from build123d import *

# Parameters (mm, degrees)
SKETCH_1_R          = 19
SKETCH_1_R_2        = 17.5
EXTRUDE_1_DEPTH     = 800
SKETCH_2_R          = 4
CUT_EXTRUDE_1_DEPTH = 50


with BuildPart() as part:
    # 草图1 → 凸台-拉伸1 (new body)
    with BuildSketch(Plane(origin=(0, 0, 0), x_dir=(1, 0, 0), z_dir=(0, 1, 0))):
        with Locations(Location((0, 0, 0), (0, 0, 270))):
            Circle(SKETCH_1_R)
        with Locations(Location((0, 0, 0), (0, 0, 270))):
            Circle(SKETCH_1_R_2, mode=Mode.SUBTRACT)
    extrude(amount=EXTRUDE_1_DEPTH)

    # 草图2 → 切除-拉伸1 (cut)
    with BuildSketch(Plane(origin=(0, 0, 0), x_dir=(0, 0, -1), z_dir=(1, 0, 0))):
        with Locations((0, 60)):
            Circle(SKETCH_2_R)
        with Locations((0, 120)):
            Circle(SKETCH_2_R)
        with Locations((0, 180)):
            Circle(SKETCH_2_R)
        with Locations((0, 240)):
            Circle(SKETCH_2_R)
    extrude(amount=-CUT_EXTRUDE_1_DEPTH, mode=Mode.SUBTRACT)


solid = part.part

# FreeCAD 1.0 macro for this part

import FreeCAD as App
import Part
import Sketcher

V = App.Vector

doc = App.newDocument("Part")
params = doc.addObject("Spreadsheet::Sheet", "Params")
for row, (alias, value) in enumerate([
    ("sketch1_diameter", "38 mm"),
    ("sketch1_diameter2", "35 mm"),
    ("pad1_length", "800 mm"),
    ("sketch2_diameter", "8 mm"),
    ("pocket1_length", "50 mm"),
], start=1):
    params.set(f"A{row}", alias)
    params.set(f"B{row}", "=" + value)
    params.setAlias(f"B{row}", alias)

body = doc.addObject("PartDesign::Body", "Body")

# Sketch on XZ plane
sketch1 = body.newObject("Sketcher::SketchObject", "Sketch")
sketch1.AttachmentSupport = (doc.getObject("XZ_Plane"), [""])
sketch1.MapMode = "FlatFace"
sketch1.addGeometry([
    Part.Circle(V(0, 0, 0), V(0, 0, 1), 19),
    Part.Circle(V(0, 0, 0), V(0, 0, 1), 18),
], False)
sketch1.addConstraint([
    Sketcher.Constraint("Coincident", 0, 3, -1, 1),
    Sketcher.Constraint("Coincident", 1, 3, -1, 1),
    Sketcher.Constraint("Diameter", 0, 38.0),
    Sketcher.Constraint("Diameter", 1, 35.0),
])
sketch1.setExpression("Constraints[2]", "Params.sketch1_diameter")
sketch1.setExpression("Constraints[3]", "Params.sketch1_diameter2")
pad1 = body.newObject("PartDesign::Pad", "Pad")
pad1.Profile = sketch1
pad1.setExpression("Length", "Params.pad1_length")
pad1.Reversed = True

# Sketch on YZ plane
sketch2 = body.newObject("Sketcher::SketchObject", "Sketch001")
sketch2.AttachmentSupport = (doc.getObject("YZ_Plane"), [""])
sketch2.MapMode = "FlatFace"
sketch2.addGeometry([
    Part.Circle(V(60, 0, 0), V(0, 0, 1), 4),
    Part.Circle(V(120, 0, 0), V(0, 0, 1), 4),
    Part.Circle(V(180, 0, 0), V(0, 0, 1), 4),
    Part.Circle(V(240, 0, 0), V(0, 0, 1), 4),
], False)
sketch2.addConstraint([
    Sketcher.Constraint("Equal", 0, 1),
    Sketcher.Constraint("Equal", 1, 2),
    Sketcher.Constraint("Equal", 2, 3),
    Sketcher.Constraint("PointOnObject", 0, 3, -1),
    Sketcher.Constraint("PointOnObject", 1, 3, -1),
    Sketcher.Constraint("PointOnObject", 2, 3, -1),
    Sketcher.Constraint("PointOnObject", 3, 3, -1),
    Sketcher.Constraint("Diameter", 0, 8.0),
    Sketcher.Constraint("DistanceX", -1, 1, 0, 3, 60.0),
    Sketcher.Constraint("DistanceX", -1, 1, 1, 3, 120.0),
    Sketcher.Constraint("DistanceX", -1, 1, 2, 3, 180.0),
    Sketcher.Constraint("DistanceX", -1, 1, 3, 3, 240.0),
])
sketch2.setExpression("Constraints[7]", "Params.sketch2_diameter")
pocket1 = body.newObject("PartDesign::Pocket", "Pocket")
pocket1.Profile = sketch2
pocket1.setExpression("Length", "Params.pocket1_length")

doc.recompute()
